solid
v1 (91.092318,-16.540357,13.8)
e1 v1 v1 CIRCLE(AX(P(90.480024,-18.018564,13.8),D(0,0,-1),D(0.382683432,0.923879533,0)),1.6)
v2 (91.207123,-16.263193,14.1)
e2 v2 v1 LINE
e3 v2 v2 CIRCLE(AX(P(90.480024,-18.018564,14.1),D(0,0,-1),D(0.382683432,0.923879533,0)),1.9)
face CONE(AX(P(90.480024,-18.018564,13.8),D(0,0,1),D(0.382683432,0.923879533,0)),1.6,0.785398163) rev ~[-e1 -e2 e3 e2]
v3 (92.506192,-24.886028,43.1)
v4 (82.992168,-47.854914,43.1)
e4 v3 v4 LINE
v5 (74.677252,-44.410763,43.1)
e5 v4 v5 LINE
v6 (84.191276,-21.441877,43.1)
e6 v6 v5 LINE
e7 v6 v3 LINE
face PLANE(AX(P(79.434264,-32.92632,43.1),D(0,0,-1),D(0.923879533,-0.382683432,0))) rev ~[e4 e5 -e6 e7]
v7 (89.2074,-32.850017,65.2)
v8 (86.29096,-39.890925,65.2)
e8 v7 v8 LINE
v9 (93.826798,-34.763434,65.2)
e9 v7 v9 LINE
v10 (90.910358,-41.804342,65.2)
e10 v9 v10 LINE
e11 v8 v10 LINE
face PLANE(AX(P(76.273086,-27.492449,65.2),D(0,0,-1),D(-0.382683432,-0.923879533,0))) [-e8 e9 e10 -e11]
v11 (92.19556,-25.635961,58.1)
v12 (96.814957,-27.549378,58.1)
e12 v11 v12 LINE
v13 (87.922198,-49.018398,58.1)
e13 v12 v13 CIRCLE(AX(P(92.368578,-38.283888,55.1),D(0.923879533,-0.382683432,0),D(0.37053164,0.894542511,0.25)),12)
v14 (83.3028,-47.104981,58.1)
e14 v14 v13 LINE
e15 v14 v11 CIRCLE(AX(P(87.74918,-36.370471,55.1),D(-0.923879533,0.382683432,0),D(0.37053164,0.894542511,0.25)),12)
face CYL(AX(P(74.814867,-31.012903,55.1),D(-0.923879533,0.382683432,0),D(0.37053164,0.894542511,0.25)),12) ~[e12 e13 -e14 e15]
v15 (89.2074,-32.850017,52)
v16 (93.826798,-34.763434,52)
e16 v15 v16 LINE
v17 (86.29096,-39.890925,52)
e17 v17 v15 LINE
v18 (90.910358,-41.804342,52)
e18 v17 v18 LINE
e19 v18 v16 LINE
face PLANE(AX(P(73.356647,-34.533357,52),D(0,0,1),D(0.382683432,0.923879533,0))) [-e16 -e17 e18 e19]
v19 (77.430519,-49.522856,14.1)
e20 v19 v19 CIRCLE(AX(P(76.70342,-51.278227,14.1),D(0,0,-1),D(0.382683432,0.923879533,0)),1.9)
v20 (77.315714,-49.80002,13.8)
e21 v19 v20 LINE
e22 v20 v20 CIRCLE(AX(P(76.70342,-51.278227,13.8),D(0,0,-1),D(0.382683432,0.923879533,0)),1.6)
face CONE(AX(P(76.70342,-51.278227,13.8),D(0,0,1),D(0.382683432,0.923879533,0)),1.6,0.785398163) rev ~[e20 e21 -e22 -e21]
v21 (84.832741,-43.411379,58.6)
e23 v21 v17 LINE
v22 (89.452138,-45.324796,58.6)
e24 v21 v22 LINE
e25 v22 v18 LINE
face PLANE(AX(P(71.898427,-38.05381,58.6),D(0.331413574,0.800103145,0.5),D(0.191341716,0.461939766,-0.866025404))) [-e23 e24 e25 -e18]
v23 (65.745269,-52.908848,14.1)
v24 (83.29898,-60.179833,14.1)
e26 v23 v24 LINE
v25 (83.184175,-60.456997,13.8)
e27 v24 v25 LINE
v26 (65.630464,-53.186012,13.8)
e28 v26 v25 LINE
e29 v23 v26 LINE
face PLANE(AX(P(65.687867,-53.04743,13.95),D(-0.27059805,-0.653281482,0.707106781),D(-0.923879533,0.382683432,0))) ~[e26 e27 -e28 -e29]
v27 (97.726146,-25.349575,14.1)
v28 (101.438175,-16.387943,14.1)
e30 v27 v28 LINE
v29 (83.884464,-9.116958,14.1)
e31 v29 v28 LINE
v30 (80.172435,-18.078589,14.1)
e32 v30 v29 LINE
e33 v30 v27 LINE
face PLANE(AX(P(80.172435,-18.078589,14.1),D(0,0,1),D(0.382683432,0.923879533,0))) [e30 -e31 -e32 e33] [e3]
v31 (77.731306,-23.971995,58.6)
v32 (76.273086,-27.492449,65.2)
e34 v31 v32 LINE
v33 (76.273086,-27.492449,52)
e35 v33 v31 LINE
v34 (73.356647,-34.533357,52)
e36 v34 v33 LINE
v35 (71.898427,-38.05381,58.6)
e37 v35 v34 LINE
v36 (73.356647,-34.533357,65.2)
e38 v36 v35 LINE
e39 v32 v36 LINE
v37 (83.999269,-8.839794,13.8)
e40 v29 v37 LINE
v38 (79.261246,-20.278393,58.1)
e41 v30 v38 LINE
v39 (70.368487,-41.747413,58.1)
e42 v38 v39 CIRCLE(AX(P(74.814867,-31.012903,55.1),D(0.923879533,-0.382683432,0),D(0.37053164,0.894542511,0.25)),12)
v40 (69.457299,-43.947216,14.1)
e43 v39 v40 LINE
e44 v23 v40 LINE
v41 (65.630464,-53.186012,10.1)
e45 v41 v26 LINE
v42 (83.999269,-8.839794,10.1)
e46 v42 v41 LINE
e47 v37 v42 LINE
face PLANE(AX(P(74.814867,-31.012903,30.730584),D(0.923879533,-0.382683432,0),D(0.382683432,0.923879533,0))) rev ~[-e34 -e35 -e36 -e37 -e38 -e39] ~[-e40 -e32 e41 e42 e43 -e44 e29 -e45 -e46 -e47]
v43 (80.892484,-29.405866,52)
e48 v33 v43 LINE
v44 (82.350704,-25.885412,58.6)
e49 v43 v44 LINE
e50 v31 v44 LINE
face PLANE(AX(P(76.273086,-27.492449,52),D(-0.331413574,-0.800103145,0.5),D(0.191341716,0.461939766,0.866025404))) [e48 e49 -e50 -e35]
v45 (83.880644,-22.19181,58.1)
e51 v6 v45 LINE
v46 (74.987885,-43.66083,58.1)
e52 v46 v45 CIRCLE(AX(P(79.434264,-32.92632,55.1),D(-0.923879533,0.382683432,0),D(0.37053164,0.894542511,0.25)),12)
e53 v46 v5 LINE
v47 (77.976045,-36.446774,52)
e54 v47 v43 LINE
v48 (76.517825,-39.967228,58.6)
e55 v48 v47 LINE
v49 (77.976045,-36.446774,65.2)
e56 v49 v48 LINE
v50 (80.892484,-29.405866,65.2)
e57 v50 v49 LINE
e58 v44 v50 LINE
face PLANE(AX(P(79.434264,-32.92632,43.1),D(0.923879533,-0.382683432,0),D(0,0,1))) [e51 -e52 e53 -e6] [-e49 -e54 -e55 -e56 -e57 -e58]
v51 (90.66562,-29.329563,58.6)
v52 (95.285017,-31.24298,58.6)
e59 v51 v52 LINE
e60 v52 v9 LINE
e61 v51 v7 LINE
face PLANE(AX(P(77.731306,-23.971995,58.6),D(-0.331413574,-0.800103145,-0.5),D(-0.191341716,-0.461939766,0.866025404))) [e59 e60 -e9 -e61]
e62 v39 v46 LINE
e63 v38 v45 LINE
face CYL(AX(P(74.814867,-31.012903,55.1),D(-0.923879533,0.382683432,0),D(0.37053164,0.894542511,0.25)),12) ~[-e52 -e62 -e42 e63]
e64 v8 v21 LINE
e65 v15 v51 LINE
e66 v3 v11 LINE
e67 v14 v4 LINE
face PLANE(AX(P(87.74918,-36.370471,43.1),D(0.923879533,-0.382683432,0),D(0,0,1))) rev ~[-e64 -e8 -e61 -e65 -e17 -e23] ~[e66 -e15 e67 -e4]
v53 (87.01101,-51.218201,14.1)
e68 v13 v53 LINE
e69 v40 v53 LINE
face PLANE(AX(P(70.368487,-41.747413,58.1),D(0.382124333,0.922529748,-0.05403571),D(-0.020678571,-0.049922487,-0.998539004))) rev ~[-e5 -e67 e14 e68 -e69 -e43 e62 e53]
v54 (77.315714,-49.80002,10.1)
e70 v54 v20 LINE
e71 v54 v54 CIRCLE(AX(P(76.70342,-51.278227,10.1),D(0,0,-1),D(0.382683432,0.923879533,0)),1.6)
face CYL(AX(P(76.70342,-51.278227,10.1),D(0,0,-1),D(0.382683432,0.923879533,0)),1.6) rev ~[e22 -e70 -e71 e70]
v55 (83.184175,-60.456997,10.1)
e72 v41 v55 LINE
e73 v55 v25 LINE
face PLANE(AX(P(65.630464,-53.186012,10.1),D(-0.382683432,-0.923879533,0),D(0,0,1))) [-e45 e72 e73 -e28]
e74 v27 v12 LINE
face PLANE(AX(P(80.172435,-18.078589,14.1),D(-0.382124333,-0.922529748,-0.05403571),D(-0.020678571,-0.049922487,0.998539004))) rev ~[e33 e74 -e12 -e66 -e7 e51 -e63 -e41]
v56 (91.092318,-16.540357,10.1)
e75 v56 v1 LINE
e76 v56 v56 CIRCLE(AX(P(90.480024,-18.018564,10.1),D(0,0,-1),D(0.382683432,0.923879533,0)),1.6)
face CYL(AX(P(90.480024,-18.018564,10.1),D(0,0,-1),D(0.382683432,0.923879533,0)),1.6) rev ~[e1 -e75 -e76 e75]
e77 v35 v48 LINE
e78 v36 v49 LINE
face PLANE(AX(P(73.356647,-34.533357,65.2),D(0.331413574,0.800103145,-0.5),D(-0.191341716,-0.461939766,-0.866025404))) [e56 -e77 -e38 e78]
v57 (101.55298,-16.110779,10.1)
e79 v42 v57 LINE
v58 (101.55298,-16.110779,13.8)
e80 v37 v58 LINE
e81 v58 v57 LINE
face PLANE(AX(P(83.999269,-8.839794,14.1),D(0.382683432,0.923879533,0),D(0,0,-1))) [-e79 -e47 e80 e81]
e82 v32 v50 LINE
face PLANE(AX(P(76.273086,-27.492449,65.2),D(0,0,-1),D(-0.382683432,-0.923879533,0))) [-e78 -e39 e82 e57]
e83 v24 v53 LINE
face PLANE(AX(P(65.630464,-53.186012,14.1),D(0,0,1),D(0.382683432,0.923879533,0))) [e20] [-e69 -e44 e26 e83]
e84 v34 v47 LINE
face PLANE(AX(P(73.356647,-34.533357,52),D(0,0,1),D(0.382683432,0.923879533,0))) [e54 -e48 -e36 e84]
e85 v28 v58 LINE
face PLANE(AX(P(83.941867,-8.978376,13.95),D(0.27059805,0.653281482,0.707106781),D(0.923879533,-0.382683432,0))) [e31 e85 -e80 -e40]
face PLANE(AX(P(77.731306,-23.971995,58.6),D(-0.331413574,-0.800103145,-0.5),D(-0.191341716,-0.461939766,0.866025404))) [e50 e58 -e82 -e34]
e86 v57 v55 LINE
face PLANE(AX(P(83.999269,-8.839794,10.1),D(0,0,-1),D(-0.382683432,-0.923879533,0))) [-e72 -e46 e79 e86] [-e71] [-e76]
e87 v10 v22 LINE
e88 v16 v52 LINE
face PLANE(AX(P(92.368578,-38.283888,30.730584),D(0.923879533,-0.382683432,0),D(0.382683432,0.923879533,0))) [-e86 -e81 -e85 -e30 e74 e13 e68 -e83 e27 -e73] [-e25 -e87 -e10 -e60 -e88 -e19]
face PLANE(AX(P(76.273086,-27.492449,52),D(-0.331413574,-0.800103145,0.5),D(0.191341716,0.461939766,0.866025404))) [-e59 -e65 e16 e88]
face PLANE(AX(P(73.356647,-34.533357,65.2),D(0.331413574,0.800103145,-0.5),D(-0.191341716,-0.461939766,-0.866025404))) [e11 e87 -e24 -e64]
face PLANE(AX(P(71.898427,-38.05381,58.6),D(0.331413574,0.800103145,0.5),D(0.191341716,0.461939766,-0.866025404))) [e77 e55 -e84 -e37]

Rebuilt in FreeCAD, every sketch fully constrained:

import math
import FreeCAD as App
import Part
import Sketcher
from FreeCAD import Vector
Q = App.Units.Quantity


def edges_at(feature, points):
    """Names of the edges that pass closest to the given points."""
    edges = feature.Shape.Edges
    near = lambda p: min(range(len(edges)), key=lambda i: edges[i].distToShape(Part.Vertex(*p))[0])
    return sorted({f"Edge{near(p) + 1}" for p in points})


def add_polygon(sketch, points):
    """Adds a closed chain of lines whose ends are joined by coincident constraints."""
    first, n = sketch.GeometryCount, len(points)
    for a, b in zip(points, points[1:] + points[:1]):
        sketch.addGeometry(Part.LineSegment(App.Vector(*a, 0), App.Vector(*b, 0)), False)
    for i in range(n):
        sketch.addConstraint(Sketcher.Constraint("Coincident", first + i, 2, first + (i + 1) % n, 1))

doc = App.newDocument("Part")
body = doc.addObject("PartDesign::Body", "Body")

sketch1 = body.newObject("Sketcher::SketchObject", "Sketch")
sketch1.AttachmentSupport = (doc.getObject("YZ_Plane"), [""])
sketch1.MapMode = "FlatFace"
sketch1.addGeometry(Part.ArcOfCircle(Part.Circle(Vector(0, 0, 0), Vector(0, 0, 1), 12), math.radians(14.477512), math.radians(165.522488)), False)
sketch1.addGeometry(Part.LineSegment(Vector(-11.61895, 3, 0), Vector(-14, -41, 0)), False)
sketch1.addGeometry(Part.LineSegment(Vector(-14, -41, 0), Vector(-24, -41, 0)), False)
sketch1.addGeometry(Part.LineSegment(Vector(-24, -41, 0), Vector(-24, -45, 0)), False)
sketch1.addGeometry(Part.LineSegment(Vector(-24, -45, 0), Vector(24, -45, 0)), False)
sketch1.addGeometry(Part.LineSegment(Vector(24, -45, 0), Vector(24, -41, 0)), False)
sketch1.addGeometry(Part.LineSegment(Vector(24, -41, 0), Vector(14, -41, 0)), False)
sketch1.addGeometry(Part.LineSegment(Vector(14, -41, 0), Vector(11.61895, 3, 0)), False)
add_polygon(sketch1, [(3.810512, 10.1), (7.621024, 3.5), (3.810512, -3.1), (-3.810512, -3.1), (-7.621024, 3.5), (-3.810512, 10.1)])
sketch1.addConstraint(Sketcher.Constraint("Coincident", 0, 2, 1, 1))
sketch1.addConstraint(Sketcher.Constraint("Coincident", 1, 2, 2, 1))
sketch1.addConstraint(Sketcher.Constraint("Coincident", 2, 2, 3, 1))
sketch1.addConstraint(Sketcher.Constraint("Coincident", 3, 2, 4, 1))
sketch1.addConstraint(Sketcher.Constraint("Coincident", 4, 2, 5, 1))
sketch1.addConstraint(Sketcher.Constraint("Coincident", 5, 2, 6, 1))
sketch1.addConstraint(Sketcher.Constraint("Coincident", 6, 2, 7, 1))
sketch1.addConstraint(Sketcher.Constraint("Coincident", 7, 2, 0, 1))
sketch1.addConstraint(Sketcher.Constraint("Horizontal", 2))
sketch1.addConstraint(Sketcher.Constraint("Vertical", 3))
sketch1.addConstraint(Sketcher.Constraint("Horizontal", 4))
sketch1.addConstraint(Sketcher.Constraint("Vertical", 5))
sketch1.addConstraint(Sketcher.Constraint("Horizontal", 6))
sketch1.addConstraint(Sketcher.Constraint("Horizontal", 10))
sketch1.addConstraint(Sketcher.Constraint("Horizontal", 13))
sketch1.addConstraint(Sketcher.Constraint("Coincident", 0, 3, -1, 1))
sketch1.addConstraint(Sketcher.Constraint("Symmetric", 2, 2, 5, 2, -2))
sketch1.addConstraint(Sketcher.Constraint("Symmetric", 8, 2, 11, 2, -2))
sketch1.addConstraint(Sketcher.Constraint("Parallel", 8, 11))
sketch1.addConstraint(Sketcher.Constraint("Parallel", 9, 12))
sketch1.addConstraint(Sketcher.Constraint("Horizontal", 0, 2, 7, 2))
sketch1.addConstraint(Sketcher.Constraint("Vertical", 10, 2, 12, 2))
sketch1.addConstraint(Sketcher.Constraint("Vertical", 9, 2, 13, 2))
sketch1.addConstraint(Sketcher.Constraint("Equal", 2, 6))
sketch1.addConstraint(Sketcher.Constraint("Radius", 0, 12.0))
sketch1.addConstraint(Sketcher.Constraint("DistanceX", 2, 2, 2, 1, 10.0))
sketch1.addConstraint(Sketcher.Constraint("DistanceX", 4, 1, 4, 2, 48.0))
sketch1.addConstraint(Sketcher.Constraint("DistanceY", 3, 2, 3, 1, 4.0))
sketch1.addConstraint(Sketcher.Constraint("Angle", 8, Q("-60 deg")))
sketch1.addConstraint(Sketcher.Constraint("DistanceY", -1, 1, 0, 2, 3.0))
sketch1.addConstraint(Sketcher.Constraint("DistanceY", 1, 2, -1, 1, 41.0))
sketch1.addConstraint(Sketcher.Constraint("DistanceY", -1, 1, 8, 2, 3.5))
sketch1.addConstraint(Sketcher.Constraint("DistanceY", 9, 2, -1, 1, 3.1))
sketch1.addConstraint(Sketcher.Constraint("DistanceX", 10, 2, 10, 1, 7.621024))
pad1 = body.newObject("PartDesign::Pad", "Pad")
pad1.Profile = sketch1
pad1.Length = 19

sketch2 = body.newObject("Sketcher::SketchObject", "Sketch001")
sketch2.AttachmentSupport = (doc.getObject("XZ_Plane"), [""])
sketch2.MapMode = "FlatFace"
add_polygon(sketch2, [(5, 15), (5, -12), (14, -12), (14, 15)])
sketch2.addConstraint(Sketcher.Constraint("Vertical", 0))
sketch2.addConstraint(Sketcher.Constraint("Horizontal", 1))
sketch2.addConstraint(Sketcher.Constraint("Vertical", 2))
sketch2.addConstraint(Sketcher.Constraint("Horizontal", 3))
sketch2.addConstraint(Sketcher.Constraint("DistanceX", 1, 1, 1, 2, 9.0))
sketch2.addConstraint(Sketcher.Constraint("DistanceY", 0, 2, 0, 1, 27.0))
sketch2.addConstraint(Sketcher.Constraint("DistanceX", -1, 1, 0, 2, 5.0))
sketch2.addConstraint(Sketcher.Constraint("DistanceY", 0, 2, -1, 1, 12.0))
pocket1 = body.newObject("PartDesign::Pocket", "Pocket")
pocket1.Profile = sketch2
pocket1.Length = 30
pocket1.Midplane = True

sketch3 = body.newObject("Sketcher::SketchObject", "Sketch002")
sketch3.AttachmentSupport = (doc.getObject("XY_Plane"), [""])
sketch3.MapMode = "FlatFace"
sketch3.AttachmentOffset = App.Placement(Vector(0, 0, -45), App.Rotation())
sketch3.addGeometry(Part.Circle(Vector(9.5, -18, 0), Vector(0, 0, 1), 1.6), False)
sketch3.addGeometry(Part.Circle(Vector(9.5, 18, 0), Vector(0, 0, 1), 1.6), False)
sketch3.addConstraint(Sketcher.Constraint("Equal", 0, 1))
sketch3.addConstraint(Sketcher.Constraint("Symmetric", 0, 3, 1, 3, -1))
sketch3.addConstraint(Sketcher.Constraint("Diameter", 0, 3.2))
sketch3.addConstraint(Sketcher.Constraint("DistanceY", 0, 3, -1, 1, 18.0))
sketch3.addConstraint(Sketcher.Constraint("DistanceX", -1, 1, 0, 3, 9.5))
pocket2 = body.newObject("PartDesign::Pocket", "Pocket001")
pocket2.Profile = sketch3
pocket2.Length = 5
pocket2.Reversed = True
doc.recompute()

chamfer = body.newObject("PartDesign::Chamfer", "Chamfer")
chamfer.Base = (pocket2, edges_at(pocket2, [
    (9.5, 16.4, -41),
    (9.5, -19.6, -41),
    (9.5, -24, -41),
    (9.5, 24, -41),
]))
chamfer.Size = 0.3
body2 = doc.addObject("PartDesign::Body", "Body001")
doc.recompute()

body.Placement = App.Placement(Vector(74.814867, -31.012903, 55.1), App.Rotation(Vector(0, 0, -1), 22.5))
boolean = body2.newObject("PartDesign::Boolean", "Boolean")
boolean.Type = "Fuse"
boolean.addObjects([body])

doc.recompute()
